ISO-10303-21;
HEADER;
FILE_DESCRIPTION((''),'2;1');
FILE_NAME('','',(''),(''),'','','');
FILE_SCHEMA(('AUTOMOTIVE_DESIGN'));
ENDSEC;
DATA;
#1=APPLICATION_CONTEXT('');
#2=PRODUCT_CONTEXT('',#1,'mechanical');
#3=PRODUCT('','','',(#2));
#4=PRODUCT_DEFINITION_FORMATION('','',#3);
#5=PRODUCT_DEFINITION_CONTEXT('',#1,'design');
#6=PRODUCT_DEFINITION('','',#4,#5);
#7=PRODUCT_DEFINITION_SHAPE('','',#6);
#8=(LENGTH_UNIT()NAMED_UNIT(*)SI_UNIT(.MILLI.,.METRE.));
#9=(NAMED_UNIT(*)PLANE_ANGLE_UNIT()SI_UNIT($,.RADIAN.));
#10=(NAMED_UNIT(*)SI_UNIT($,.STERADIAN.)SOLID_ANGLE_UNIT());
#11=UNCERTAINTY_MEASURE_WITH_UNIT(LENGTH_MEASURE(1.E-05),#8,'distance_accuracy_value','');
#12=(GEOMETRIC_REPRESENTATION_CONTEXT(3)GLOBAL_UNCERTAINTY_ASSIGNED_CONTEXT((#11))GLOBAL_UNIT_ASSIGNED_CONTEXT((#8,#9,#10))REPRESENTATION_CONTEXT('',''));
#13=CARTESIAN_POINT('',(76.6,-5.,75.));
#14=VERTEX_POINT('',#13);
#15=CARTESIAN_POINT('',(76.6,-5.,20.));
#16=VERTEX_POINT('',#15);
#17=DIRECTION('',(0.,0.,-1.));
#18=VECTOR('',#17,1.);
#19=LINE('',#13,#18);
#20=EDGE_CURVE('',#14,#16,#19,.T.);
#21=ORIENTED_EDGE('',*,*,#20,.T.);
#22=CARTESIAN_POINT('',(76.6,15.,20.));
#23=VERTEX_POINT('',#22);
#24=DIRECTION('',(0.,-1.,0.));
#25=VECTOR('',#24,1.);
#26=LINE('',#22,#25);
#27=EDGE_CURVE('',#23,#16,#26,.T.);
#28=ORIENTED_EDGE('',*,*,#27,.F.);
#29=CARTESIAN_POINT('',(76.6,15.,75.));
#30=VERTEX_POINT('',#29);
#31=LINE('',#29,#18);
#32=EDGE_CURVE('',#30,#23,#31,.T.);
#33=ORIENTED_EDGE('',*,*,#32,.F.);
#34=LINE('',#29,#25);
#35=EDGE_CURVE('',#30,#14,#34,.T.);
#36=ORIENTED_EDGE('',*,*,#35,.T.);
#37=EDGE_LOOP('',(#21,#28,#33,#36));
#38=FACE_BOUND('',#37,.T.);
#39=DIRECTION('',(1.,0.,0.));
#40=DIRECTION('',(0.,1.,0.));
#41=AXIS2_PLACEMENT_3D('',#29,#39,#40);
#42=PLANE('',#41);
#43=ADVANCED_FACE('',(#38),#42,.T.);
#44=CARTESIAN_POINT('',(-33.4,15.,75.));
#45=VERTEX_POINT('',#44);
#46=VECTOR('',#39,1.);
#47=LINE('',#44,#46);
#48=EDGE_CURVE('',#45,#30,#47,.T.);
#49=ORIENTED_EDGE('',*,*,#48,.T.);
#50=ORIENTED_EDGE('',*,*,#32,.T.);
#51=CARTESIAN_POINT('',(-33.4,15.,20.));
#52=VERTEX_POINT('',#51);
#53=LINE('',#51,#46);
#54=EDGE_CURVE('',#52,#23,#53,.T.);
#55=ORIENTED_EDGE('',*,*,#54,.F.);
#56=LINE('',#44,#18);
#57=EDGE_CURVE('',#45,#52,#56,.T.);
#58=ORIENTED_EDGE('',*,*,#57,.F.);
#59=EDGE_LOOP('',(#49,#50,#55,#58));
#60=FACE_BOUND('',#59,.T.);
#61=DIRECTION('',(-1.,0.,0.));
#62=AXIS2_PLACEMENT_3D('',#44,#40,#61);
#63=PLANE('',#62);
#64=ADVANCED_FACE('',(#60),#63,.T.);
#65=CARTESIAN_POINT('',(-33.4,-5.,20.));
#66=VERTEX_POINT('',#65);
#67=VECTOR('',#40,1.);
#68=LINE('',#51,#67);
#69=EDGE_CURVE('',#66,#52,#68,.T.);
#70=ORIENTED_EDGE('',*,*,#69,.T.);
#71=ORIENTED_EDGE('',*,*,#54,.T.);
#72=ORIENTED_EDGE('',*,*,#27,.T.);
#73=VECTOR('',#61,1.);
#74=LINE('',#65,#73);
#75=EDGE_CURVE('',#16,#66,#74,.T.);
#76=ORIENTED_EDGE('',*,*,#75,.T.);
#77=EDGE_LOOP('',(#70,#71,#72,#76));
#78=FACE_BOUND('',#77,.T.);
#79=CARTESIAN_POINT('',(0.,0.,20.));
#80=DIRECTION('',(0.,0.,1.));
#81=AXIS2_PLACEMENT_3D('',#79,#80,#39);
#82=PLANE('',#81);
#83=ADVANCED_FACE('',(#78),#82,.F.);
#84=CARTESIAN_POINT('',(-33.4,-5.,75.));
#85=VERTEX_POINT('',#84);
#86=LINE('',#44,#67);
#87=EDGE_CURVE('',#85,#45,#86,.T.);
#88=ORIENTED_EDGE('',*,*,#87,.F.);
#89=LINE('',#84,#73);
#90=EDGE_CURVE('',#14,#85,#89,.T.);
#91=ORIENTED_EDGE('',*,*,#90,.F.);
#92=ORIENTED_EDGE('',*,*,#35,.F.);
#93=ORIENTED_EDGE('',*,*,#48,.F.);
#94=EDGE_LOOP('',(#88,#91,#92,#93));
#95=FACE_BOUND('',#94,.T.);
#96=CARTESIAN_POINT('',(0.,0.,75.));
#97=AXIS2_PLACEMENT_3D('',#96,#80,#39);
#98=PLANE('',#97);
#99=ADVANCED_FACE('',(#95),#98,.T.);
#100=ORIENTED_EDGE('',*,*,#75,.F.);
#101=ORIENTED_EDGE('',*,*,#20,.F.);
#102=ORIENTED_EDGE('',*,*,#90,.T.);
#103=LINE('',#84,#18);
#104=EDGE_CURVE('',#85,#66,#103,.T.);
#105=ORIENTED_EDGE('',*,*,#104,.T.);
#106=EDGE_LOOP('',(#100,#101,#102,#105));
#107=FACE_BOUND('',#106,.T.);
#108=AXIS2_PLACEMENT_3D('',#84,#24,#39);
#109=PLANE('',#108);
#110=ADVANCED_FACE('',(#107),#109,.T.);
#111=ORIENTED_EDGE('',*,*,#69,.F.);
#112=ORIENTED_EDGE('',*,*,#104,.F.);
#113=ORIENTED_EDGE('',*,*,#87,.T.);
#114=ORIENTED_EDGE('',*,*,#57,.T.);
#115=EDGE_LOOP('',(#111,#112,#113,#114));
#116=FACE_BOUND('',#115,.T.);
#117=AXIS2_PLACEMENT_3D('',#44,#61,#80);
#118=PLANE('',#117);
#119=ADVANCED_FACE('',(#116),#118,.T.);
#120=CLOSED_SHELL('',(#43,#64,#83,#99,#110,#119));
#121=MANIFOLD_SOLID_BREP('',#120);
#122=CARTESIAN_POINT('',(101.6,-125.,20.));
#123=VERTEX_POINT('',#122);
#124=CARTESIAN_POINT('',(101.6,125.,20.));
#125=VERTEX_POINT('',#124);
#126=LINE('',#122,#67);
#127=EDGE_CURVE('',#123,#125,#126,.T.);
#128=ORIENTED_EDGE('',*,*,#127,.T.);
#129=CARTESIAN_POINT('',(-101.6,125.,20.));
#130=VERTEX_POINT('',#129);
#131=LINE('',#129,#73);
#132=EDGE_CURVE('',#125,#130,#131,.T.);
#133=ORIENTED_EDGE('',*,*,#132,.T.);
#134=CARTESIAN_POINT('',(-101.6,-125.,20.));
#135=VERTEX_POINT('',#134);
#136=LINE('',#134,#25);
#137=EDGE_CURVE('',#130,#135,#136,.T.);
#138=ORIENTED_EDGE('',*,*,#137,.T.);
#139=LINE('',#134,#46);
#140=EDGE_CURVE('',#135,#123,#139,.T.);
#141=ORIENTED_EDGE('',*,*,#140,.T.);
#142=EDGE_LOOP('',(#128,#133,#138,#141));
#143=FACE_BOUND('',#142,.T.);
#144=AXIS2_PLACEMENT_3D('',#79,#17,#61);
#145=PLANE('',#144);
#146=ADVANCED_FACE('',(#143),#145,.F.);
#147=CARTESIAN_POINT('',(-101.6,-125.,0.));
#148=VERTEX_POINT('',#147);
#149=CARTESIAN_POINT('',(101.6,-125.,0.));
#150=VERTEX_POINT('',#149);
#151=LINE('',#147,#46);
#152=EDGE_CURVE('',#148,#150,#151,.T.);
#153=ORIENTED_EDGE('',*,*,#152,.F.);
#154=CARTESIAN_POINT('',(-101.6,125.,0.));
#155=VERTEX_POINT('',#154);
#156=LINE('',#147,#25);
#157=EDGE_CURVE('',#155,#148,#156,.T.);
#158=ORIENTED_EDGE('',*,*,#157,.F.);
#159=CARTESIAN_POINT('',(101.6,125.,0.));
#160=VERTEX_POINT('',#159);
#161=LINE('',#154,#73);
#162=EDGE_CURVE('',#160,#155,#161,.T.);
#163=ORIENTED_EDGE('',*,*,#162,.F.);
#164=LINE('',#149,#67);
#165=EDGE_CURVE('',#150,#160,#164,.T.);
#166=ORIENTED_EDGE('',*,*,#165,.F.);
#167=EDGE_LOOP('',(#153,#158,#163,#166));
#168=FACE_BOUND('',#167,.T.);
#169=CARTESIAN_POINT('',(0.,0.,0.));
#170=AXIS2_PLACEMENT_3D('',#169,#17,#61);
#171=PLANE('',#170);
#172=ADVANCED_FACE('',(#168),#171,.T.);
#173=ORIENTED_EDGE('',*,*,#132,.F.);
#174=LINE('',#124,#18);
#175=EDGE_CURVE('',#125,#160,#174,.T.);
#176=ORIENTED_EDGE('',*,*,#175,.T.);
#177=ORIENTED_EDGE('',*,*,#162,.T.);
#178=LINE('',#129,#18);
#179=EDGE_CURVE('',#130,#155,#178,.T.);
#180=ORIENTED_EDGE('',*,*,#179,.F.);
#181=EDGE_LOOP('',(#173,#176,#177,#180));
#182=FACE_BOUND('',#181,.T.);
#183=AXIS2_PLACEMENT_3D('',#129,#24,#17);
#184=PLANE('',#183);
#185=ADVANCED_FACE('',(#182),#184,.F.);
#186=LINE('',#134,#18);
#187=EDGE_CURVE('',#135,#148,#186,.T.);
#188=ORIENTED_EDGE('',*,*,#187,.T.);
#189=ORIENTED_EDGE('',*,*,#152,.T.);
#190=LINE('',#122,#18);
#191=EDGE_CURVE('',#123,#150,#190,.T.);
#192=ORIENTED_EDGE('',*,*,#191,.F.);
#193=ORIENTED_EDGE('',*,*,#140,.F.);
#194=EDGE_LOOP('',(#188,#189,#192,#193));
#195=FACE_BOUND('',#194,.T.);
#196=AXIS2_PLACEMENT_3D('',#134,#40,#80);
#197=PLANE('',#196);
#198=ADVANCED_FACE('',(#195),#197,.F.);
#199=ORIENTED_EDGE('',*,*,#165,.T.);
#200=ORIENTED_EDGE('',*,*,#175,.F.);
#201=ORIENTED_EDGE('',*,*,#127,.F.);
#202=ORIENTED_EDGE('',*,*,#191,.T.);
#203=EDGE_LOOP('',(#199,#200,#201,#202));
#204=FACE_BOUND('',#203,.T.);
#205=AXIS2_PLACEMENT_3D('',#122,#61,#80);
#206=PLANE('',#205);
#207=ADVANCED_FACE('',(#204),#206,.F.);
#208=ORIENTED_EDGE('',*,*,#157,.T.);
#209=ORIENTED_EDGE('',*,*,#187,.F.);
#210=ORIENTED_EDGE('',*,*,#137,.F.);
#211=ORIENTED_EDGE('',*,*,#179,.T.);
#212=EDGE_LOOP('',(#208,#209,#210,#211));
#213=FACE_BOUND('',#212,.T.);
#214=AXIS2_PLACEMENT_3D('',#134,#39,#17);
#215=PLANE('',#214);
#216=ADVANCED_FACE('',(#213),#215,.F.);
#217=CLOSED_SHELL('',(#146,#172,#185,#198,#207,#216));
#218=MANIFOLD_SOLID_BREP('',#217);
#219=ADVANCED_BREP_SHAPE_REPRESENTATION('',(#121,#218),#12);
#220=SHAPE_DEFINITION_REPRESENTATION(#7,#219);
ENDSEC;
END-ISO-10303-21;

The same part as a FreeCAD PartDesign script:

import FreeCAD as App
import Part
import Sketcher

V = App.Vector
Q = App.Units.Quantity

doc = App.newDocument("Part")
params = doc.addObject("Spreadsheet::Sheet", "Params")
for row, (alias, value) in enumerate([
    ("sketch1_height", "250 mm"),
    ("sketch1_width", "203.2 mm"),
    ("pad1_length", "20 mm"),
    ("sketch2_width", "110 mm"),
    ("sketch2_height", "20 mm"),
    ("pad2_length", "55 mm"),
], start=1):
    params.set(f"A{row}", alias)
    params.set(f"B{row}", "=" + value)
    params.setAlias(f"B{row}", alias)

body = doc.addObject("PartDesign::Body", "Body")

# Sketch on XY plane
sketch1 = body.newObject("Sketcher::SketchObject", "Sketch")
sketch1.AttachmentSupport = (doc.getObject("XY_Plane"), [""])
sketch1.MapMode = "FlatFace"
sketch1.addGeometry([
    Part.LineSegment(V(-102, 125, 0), V(-102, -125, 0)),
    Part.LineSegment(V(-102, -125, 0), V(102, -125, 0)),
    Part.LineSegment(V(102, -125, 0), V(102, 125, 0)),
    Part.LineSegment(V(102, 125, 0), V(-102, 125, 0)),
], False)
sketch1.addConstraint([
    Sketcher.Constraint("Coincident", 0, 2, 1, 1),
    Sketcher.Constraint("Coincident", 1, 2, 2, 1),
    Sketcher.Constraint("Coincident", 2, 2, 3, 1),
    Sketcher.Constraint("Coincident", 3, 2, 0, 1),
    Sketcher.Constraint("Vertical", 0),
    Sketcher.Constraint("Horizontal", 1),
    Sketcher.Constraint("Vertical", 2),
    Sketcher.Constraint("Horizontal", 3),
    Sketcher.Constraint("Symmetric", 0, 2, 2, 2, -1, 1),
    Sketcher.Constraint("DistanceY", 0, 2, 0, 1, Q("250 mm")),
    Sketcher.Constraint("DistanceX", 1, 1, 1, 2, Q("203.2 mm")),
])
sketch1.setExpression("Constraints[9]", "Params.sketch1_height")
sketch1.setExpression("Constraints[10]", "Params.sketch1_width")
pad1 = body.newObject("PartDesign::Pad", "Pad")
pad1.Profile = sketch1
pad1.setExpression("Length", "Params.pad1_length")
body2 = doc.addObject("PartDesign::Body", "Body001")

# Sketch on XY plane
sketch2 = body2.newObject("Sketcher::SketchObject", "Sketch001")
sketch2.AttachmentSupport = (doc.getObject("XY_Plane001"), [""])
sketch2.MapMode = "FlatFace"
sketch2.AttachmentOffset = App.Placement(V(0, 0, 20), App.Rotation())
sketch2.addGeometry([
    Part.LineSegment(V(77, 15, 0), V(77, -5, 0)),
    Part.LineSegment(V(77, -5, 0), V(-33, -5, 0)),
    Part.LineSegment(V(-33, -5, 0), V(-33, 15, 0)),
    Part.LineSegment(V(-33, 15, 0), V(77, 15, 0)),
], False)
sketch2.addConstraint([
    Sketcher.Constraint("Coincident", 0, 2, 1, 1),
    Sketcher.Constraint("Coincident", 1, 2, 2, 1),
    Sketcher.Constraint("Coincident", 2, 2, 3, 1),
    Sketcher.Constraint("Coincident", 3, 2, 0, 1),
    Sketcher.Constraint("Vertical", 0),
    Sketcher.Constraint("Horizontal", 1),
    Sketcher.Constraint("Vertical", 2),
    Sketcher.Constraint("Horizontal", 3),
    Sketcher.Constraint("DistanceX", 1, 2, 1, 1, Q("110 mm")),
    Sketcher.Constraint("DistanceY", 0, 2, 0, 1, Q("20 mm")),
    Sketcher.Constraint("DistanceY", 0, 2, -1, 1, Q("5 mm")),
    Sketcher.Constraint("DistanceX", -1, 1, 0, 2, Q("76.6 mm")),
])
sketch2.setExpression("Constraints[8]", "Params.sketch2_width")
sketch2.setExpression("Constraints[9]", "Params.sketch2_height")
pad2 = body2.newObject("PartDesign::Pad", "Pad001")
pad2.Profile = sketch2
pad2.setExpression("Length", "Params.pad2_length")

doc.recompute()
